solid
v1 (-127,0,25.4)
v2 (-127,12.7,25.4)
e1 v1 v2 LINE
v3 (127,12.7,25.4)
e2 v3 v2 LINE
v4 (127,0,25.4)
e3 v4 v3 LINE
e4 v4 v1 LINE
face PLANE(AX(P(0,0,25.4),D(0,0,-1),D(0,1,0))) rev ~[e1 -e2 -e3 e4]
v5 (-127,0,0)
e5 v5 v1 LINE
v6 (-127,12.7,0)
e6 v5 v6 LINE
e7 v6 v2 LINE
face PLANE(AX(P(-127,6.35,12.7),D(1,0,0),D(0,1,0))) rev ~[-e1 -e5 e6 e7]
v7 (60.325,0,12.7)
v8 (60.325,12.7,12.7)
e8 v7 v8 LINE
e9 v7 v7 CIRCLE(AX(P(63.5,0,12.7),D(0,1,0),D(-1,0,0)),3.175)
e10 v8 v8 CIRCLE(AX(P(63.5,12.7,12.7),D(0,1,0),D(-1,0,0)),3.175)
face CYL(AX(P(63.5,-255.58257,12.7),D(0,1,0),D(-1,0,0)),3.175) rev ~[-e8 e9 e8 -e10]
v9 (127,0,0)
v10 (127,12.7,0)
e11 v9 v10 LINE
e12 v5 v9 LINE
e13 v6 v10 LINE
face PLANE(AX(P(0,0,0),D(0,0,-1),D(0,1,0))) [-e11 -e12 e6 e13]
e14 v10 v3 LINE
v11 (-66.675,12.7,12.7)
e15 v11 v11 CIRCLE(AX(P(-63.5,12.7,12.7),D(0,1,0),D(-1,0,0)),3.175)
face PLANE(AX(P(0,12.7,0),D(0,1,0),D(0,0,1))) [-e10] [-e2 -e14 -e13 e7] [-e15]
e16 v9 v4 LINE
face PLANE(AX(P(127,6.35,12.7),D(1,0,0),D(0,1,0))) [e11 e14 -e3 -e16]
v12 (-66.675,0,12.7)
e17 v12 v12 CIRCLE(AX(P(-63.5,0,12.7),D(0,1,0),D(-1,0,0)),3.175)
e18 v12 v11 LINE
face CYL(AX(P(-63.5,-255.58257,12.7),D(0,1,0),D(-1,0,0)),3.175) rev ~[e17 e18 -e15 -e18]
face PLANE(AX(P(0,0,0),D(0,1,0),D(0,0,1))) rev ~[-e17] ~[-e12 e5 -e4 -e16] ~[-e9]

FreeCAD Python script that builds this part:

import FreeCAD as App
import Part
import Sketcher
Q = App.Units.Quantity

doc = App.newDocument("Part")
body = doc.addObject("PartDesign::Body", "Body")

sketch1 = doc.addObject("Sketcher::SketchObject", "Sketch")
body.addObject(sketch1)
sketch1.AttachmentSupport = (doc.YZ_Plane, [""])
sketch1.MapMode = "FlatFace"
sketch1.addGeometry([
    Part.LineSegment(App.Vector(0, 25, 0), App.Vector(0, 0, 0)),
    Part.LineSegment(App.Vector(0, 0, 0), App.Vector(13, 0, 0)),
    Part.LineSegment(App.Vector(13, 0, 0), App.Vector(13, 25, 0)),
    Part.LineSegment(App.Vector(13, 25, 0), App.Vector(0, 25, 0)),
], False)
sketch1.addConstraint([
    Sketcher.Constraint("Coincident", 0, 2, 1, 1),
    Sketcher.Constraint("Coincident", 1, 2, 2, 1),
    Sketcher.Constraint("Coincident", 2, 2, 3, 1),
    Sketcher.Constraint("Coincident", 3, 2, 0, 1),
    Sketcher.Constraint("Vertical", 0),
    Sketcher.Constraint("Horizontal", 1),
    Sketcher.Constraint("Vertical", 2),
    Sketcher.Constraint("Horizontal", 3),
    Sketcher.Constraint("Coincident", 0, 2, -1, 1),
    Sketcher.Constraint("DistanceY", 0, 2, 0, 1, Q("1 in")),
    Sketcher.Constraint("DistanceX", 1, 1, 1, 2, Q("0.5 in")),
])
pad1 = doc.addObject("PartDesign::Pad", "Pad")
body.addObject(pad1)
pad1.Profile = sketch1
pad1.Type = "TwoLengths"
pad1.Length = Q("5 in")
pad1.Length2 = Q("5 in")

sketch2 = doc.addObject("Sketcher::SketchObject", "Sketch001")
body.addObject(sketch2)
sketch2.AttachmentSupport = (doc.XZ_Plane, [""])
sketch2.MapMode = "FlatFace"
sketch2.addGeometry([
    Part.Circle(App.Vector(-63.5, 12.7, 0), App.Vector(0, 0, 1), 3.2),
    Part.Circle(App.Vector(63.5, 12.7, 0), App.Vector(0, 0, 1), 3.2),
], False)
sketch2.addConstraint([
    Sketcher.Constraint("Equal", 0, 1),
    Sketcher.Constraint("Symmetric", 0, 3, 1, 3, -2),
    Sketcher.Constraint("Diameter", 0, Q("0.25 in")),
    Sketcher.Constraint("DistanceX", 0, 3, 1, 3, Q("5 in")),
    Sketcher.Constraint("DistanceY", -1, 1, 0, 3, Q("0.5 in")),
])
doc.recompute()
hole = doc.addObject("PartDesign::Hole", "Hole")
body.addObject(hole)
hole.Profile = sketch2
hole.ThreadType = "None"
hole.Diameter = Q("0.25 in")
hole.DepthType = "ThroughAll"

doc.recompute()
